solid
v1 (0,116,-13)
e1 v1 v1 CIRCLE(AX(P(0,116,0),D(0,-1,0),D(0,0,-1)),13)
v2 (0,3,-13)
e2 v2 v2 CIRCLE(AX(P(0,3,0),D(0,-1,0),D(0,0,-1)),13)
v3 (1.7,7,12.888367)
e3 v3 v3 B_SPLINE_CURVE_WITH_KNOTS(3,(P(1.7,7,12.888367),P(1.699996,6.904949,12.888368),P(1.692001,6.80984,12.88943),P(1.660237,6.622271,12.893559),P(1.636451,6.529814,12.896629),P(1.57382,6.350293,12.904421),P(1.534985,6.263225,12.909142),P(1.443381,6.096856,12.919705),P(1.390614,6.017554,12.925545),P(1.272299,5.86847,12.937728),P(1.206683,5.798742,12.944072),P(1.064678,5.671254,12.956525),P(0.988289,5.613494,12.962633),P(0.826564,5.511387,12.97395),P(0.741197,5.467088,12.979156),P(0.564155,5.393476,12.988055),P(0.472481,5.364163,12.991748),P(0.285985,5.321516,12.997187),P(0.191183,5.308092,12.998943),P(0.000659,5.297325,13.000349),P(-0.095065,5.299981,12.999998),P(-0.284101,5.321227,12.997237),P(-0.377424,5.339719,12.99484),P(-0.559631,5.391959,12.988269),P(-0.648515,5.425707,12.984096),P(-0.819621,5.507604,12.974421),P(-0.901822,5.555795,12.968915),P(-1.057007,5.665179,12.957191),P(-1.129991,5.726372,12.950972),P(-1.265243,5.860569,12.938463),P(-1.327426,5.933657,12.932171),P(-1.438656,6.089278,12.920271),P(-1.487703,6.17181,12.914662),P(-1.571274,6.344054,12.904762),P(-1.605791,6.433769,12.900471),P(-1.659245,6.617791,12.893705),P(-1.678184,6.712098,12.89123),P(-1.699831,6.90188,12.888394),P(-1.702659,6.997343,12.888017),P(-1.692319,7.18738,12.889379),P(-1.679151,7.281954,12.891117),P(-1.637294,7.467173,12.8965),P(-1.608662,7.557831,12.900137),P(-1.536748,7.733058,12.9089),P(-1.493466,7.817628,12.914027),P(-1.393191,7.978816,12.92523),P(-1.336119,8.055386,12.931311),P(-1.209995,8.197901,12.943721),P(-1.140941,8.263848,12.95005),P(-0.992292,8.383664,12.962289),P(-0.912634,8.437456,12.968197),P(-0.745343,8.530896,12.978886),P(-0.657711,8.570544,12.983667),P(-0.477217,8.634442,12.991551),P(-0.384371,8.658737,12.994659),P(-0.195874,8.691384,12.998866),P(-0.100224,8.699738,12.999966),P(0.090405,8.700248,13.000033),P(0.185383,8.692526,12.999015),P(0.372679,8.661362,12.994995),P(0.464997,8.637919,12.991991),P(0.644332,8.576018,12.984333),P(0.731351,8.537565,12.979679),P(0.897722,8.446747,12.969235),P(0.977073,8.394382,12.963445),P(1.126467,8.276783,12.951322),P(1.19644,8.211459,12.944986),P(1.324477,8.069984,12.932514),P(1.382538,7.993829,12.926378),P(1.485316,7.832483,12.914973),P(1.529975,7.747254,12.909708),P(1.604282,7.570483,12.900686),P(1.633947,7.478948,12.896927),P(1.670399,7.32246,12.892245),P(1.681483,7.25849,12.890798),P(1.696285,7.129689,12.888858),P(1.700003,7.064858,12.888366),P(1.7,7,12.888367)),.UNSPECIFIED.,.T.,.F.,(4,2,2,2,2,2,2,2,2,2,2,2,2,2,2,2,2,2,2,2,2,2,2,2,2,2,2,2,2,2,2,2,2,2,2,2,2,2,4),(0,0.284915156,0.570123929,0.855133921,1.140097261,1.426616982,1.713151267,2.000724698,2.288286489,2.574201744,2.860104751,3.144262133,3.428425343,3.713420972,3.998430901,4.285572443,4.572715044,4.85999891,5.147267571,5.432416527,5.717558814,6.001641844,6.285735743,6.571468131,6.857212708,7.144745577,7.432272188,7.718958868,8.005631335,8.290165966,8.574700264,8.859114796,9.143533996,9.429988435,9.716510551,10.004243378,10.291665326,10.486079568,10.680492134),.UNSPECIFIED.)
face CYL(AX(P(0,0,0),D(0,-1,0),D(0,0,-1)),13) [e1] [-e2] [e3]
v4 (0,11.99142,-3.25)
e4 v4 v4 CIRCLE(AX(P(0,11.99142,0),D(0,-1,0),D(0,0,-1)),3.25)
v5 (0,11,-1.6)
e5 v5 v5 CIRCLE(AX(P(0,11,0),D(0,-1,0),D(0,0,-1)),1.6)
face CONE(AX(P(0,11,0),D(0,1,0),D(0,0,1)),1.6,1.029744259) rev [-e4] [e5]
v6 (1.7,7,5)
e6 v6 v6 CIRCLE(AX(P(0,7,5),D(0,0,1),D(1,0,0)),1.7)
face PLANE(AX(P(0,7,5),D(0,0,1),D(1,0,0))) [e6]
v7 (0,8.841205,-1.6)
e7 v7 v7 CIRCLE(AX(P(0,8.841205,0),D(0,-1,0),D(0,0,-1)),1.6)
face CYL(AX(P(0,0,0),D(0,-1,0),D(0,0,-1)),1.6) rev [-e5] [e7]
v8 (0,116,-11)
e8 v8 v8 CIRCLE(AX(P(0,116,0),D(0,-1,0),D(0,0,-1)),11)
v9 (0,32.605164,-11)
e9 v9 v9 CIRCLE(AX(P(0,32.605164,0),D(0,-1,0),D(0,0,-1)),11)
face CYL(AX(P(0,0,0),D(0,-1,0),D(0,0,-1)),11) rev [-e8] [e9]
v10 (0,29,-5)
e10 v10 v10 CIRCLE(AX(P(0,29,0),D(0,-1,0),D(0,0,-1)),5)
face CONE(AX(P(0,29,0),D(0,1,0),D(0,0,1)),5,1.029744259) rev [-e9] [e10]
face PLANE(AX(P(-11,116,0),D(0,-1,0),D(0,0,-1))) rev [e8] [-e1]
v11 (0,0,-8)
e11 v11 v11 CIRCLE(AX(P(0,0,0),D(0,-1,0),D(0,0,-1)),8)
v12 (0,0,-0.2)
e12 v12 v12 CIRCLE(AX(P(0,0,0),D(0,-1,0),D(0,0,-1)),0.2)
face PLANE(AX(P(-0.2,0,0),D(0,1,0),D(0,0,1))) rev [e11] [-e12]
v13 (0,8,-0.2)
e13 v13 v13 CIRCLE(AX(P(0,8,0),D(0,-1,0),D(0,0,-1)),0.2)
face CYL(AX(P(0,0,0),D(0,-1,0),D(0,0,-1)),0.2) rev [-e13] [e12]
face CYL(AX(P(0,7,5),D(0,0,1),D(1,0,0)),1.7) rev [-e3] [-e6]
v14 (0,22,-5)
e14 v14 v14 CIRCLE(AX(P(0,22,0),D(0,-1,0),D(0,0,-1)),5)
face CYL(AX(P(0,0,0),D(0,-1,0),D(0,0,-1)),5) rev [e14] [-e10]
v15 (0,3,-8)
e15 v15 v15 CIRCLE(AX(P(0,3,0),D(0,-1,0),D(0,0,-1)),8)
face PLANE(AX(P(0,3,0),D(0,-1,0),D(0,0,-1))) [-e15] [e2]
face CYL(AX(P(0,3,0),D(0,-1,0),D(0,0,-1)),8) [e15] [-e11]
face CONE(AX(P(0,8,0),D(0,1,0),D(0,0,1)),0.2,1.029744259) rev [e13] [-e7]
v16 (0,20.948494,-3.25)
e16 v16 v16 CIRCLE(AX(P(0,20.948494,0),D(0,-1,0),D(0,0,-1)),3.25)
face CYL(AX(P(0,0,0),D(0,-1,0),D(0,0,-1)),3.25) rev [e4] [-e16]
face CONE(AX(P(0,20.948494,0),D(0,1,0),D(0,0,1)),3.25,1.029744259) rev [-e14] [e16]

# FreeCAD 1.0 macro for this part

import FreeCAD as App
import Part
import Sketcher
Q = App.Units.Quantity


def add_polygon(sketch, points):
    """Adds a closed chain of lines whose ends are joined by coincident constraints."""
    first, n = sketch.GeometryCount, len(points)
    for a, b in zip(points, points[1:] + points[:1]):
        sketch.addGeometry(Part.LineSegment(App.Vector(*a, 0), App.Vector(*b, 0)), False)
    for i in range(n):
        sketch.addConstraint(Sketcher.Constraint("Coincident", first + i, 2, first + (i + 1) % n, 1))

doc = App.newDocument("Part")
body = doc.addObject("PartDesign::Body", "Body")

# Sketch on XY plane
sketch1 = body.newObject("Sketcher::SketchObject", "Sketch")
sketch1.AttachmentSupport = (doc.getObject("XY_Plane"), [""])
sketch1.MapMode = "FlatFace"
add_polygon(sketch1, [(-0.2, 0), (-0.2, 8), (-1.6, 8.8), (-1.6, 11), (-3.2, 12), (-3.2, 20.9), (-5, 22), (-5, 29), (-11, 32.6), (-11, 116), (-13, 116), (-13, 0)])  # lines 0-11
sketch1.addConstraint(Sketcher.Constraint("Vertical", 0))
sketch1.addConstraint(Sketcher.Constraint("Vertical", 2))
sketch1.addConstraint(Sketcher.Constraint("Vertical", 4))
sketch1.addConstraint(Sketcher.Constraint("Vertical", 6))
sketch1.addConstraint(Sketcher.Constraint("Vertical", 8))
sketch1.addConstraint(Sketcher.Constraint("Horizontal", 9))
sketch1.addConstraint(Sketcher.Constraint("Vertical", 10))
sketch1.addConstraint(Sketcher.Constraint("Horizontal", 11))
sketch1.addConstraint(Sketcher.Constraint("PointOnObject", 10, 2, -1))
sketch1.addConstraint(Sketcher.Constraint("Parallel", 1, 3))
sketch1.addConstraint(Sketcher.Constraint("Parallel", 3, 5))
sketch1.addConstraint(Sketcher.Constraint("Parallel", 5, 7))
sketch1.addConstraint(Sketcher.Constraint("DistanceX", 9, 2, 9, 1, 2.0))
sketch1.addConstraint(Sketcher.Constraint("DistanceY", 0, 1, 0, 2, 8.0))
sketch1.addConstraint(Sketcher.Constraint("DistanceY", 6, 1, 6, 2, 7.0))
sketch1.addConstraint(Sketcher.Constraint("DistanceY", 10, 2, 10, 1, 116.0))
sketch1.addConstraint(Sketcher.Constraint("Angle", 1, Q("149 deg")))
sketch1.addConstraint(Sketcher.Constraint("DistanceX", 11, 1, 11, 2, 12.8))
sketch1.addConstraint(Sketcher.Constraint("DistanceY", -1, 1, 2, 2, 11.0))
sketch1.addConstraint(Sketcher.Constraint("DistanceX", 5, 2, -1, 1, 5.0))
sketch1.addConstraint(Sketcher.Constraint("DistanceY", -1, 1, 5, 2, 22.0))
sketch1.addConstraint(Sketcher.Constraint("DistanceX", 7, 2, -1, 1, 11.0))
sketch1.addConstraint(Sketcher.Constraint("DistanceX", 1, 2, -1, 1, 1.6))
sketch1.addConstraint(Sketcher.Constraint("DistanceX", 3, 2, -1, 1, 3.25))
revolution = body.newObject("PartDesign::Revolution", "Revolution")
revolution.Profile = sketch1
revolution.ReferenceAxis = (sketch1, ["V_Axis"])
revolution.Angle = 360

# Sketch on XZ plane
sketch2 = body.newObject("Sketcher::SketchObject", "Sketch001")
sketch2.AttachmentSupport = (doc.getObject("XZ_Plane"), [""])
sketch2.MapMode = "FlatFace"
sketch2.addGeometry(Part.Circle(App.Vector(0, 0, 0), App.Vector(0, 0, 1), 13), False)
sketch2.addGeometry(Part.Circle(App.Vector(0, 0, 0), App.Vector(0, 0, 1), 8), False)
sketch2.addConstraint(Sketcher.Constraint("Coincident", 0, 3, -1, 1))
sketch2.addConstraint(Sketcher.Constraint("Coincident", 1, 3, -1, 1))
sketch2.addConstraint(Sketcher.Constraint("Diameter", 0, 26.0))
sketch2.addConstraint(Sketcher.Constraint("Diameter", 1, 16.0))
pocket1 = body.newObject("PartDesign::Pocket", "Pocket")
pocket1.Profile = sketch2
pocket1.Length = 3

# Sketch on XY plane
sketch3 = body.newObject("Sketcher::SketchObject", "Sketch002")
sketch3.AttachmentSupport = (doc.getObject("XY_Plane"), [""])
sketch3.MapMode = "FlatFace"
sketch3.AttachmentOffset = App.Placement(App.Vector(0, 0, 13), App.Rotation())
sketch3.addGeometry(Part.Circle(App.Vector(0, 7, 0), App.Vector(0, 0, 1), 1.7), False)
sketch3.addConstraint(Sketcher.Constraint("PointOnObject", 0, 3, -2))
sketch3.addConstraint(Sketcher.Constraint("Diameter", 0, 3.4))
sketch3.addConstraint(Sketcher.Constraint("DistanceY", -1, 1, 0, 3, 7.0))
pocket2 = body.newObject("PartDesign::Pocket", "Pocket001")
pocket2.Profile = sketch3
pocket2.Length = 8

doc.recompute()
